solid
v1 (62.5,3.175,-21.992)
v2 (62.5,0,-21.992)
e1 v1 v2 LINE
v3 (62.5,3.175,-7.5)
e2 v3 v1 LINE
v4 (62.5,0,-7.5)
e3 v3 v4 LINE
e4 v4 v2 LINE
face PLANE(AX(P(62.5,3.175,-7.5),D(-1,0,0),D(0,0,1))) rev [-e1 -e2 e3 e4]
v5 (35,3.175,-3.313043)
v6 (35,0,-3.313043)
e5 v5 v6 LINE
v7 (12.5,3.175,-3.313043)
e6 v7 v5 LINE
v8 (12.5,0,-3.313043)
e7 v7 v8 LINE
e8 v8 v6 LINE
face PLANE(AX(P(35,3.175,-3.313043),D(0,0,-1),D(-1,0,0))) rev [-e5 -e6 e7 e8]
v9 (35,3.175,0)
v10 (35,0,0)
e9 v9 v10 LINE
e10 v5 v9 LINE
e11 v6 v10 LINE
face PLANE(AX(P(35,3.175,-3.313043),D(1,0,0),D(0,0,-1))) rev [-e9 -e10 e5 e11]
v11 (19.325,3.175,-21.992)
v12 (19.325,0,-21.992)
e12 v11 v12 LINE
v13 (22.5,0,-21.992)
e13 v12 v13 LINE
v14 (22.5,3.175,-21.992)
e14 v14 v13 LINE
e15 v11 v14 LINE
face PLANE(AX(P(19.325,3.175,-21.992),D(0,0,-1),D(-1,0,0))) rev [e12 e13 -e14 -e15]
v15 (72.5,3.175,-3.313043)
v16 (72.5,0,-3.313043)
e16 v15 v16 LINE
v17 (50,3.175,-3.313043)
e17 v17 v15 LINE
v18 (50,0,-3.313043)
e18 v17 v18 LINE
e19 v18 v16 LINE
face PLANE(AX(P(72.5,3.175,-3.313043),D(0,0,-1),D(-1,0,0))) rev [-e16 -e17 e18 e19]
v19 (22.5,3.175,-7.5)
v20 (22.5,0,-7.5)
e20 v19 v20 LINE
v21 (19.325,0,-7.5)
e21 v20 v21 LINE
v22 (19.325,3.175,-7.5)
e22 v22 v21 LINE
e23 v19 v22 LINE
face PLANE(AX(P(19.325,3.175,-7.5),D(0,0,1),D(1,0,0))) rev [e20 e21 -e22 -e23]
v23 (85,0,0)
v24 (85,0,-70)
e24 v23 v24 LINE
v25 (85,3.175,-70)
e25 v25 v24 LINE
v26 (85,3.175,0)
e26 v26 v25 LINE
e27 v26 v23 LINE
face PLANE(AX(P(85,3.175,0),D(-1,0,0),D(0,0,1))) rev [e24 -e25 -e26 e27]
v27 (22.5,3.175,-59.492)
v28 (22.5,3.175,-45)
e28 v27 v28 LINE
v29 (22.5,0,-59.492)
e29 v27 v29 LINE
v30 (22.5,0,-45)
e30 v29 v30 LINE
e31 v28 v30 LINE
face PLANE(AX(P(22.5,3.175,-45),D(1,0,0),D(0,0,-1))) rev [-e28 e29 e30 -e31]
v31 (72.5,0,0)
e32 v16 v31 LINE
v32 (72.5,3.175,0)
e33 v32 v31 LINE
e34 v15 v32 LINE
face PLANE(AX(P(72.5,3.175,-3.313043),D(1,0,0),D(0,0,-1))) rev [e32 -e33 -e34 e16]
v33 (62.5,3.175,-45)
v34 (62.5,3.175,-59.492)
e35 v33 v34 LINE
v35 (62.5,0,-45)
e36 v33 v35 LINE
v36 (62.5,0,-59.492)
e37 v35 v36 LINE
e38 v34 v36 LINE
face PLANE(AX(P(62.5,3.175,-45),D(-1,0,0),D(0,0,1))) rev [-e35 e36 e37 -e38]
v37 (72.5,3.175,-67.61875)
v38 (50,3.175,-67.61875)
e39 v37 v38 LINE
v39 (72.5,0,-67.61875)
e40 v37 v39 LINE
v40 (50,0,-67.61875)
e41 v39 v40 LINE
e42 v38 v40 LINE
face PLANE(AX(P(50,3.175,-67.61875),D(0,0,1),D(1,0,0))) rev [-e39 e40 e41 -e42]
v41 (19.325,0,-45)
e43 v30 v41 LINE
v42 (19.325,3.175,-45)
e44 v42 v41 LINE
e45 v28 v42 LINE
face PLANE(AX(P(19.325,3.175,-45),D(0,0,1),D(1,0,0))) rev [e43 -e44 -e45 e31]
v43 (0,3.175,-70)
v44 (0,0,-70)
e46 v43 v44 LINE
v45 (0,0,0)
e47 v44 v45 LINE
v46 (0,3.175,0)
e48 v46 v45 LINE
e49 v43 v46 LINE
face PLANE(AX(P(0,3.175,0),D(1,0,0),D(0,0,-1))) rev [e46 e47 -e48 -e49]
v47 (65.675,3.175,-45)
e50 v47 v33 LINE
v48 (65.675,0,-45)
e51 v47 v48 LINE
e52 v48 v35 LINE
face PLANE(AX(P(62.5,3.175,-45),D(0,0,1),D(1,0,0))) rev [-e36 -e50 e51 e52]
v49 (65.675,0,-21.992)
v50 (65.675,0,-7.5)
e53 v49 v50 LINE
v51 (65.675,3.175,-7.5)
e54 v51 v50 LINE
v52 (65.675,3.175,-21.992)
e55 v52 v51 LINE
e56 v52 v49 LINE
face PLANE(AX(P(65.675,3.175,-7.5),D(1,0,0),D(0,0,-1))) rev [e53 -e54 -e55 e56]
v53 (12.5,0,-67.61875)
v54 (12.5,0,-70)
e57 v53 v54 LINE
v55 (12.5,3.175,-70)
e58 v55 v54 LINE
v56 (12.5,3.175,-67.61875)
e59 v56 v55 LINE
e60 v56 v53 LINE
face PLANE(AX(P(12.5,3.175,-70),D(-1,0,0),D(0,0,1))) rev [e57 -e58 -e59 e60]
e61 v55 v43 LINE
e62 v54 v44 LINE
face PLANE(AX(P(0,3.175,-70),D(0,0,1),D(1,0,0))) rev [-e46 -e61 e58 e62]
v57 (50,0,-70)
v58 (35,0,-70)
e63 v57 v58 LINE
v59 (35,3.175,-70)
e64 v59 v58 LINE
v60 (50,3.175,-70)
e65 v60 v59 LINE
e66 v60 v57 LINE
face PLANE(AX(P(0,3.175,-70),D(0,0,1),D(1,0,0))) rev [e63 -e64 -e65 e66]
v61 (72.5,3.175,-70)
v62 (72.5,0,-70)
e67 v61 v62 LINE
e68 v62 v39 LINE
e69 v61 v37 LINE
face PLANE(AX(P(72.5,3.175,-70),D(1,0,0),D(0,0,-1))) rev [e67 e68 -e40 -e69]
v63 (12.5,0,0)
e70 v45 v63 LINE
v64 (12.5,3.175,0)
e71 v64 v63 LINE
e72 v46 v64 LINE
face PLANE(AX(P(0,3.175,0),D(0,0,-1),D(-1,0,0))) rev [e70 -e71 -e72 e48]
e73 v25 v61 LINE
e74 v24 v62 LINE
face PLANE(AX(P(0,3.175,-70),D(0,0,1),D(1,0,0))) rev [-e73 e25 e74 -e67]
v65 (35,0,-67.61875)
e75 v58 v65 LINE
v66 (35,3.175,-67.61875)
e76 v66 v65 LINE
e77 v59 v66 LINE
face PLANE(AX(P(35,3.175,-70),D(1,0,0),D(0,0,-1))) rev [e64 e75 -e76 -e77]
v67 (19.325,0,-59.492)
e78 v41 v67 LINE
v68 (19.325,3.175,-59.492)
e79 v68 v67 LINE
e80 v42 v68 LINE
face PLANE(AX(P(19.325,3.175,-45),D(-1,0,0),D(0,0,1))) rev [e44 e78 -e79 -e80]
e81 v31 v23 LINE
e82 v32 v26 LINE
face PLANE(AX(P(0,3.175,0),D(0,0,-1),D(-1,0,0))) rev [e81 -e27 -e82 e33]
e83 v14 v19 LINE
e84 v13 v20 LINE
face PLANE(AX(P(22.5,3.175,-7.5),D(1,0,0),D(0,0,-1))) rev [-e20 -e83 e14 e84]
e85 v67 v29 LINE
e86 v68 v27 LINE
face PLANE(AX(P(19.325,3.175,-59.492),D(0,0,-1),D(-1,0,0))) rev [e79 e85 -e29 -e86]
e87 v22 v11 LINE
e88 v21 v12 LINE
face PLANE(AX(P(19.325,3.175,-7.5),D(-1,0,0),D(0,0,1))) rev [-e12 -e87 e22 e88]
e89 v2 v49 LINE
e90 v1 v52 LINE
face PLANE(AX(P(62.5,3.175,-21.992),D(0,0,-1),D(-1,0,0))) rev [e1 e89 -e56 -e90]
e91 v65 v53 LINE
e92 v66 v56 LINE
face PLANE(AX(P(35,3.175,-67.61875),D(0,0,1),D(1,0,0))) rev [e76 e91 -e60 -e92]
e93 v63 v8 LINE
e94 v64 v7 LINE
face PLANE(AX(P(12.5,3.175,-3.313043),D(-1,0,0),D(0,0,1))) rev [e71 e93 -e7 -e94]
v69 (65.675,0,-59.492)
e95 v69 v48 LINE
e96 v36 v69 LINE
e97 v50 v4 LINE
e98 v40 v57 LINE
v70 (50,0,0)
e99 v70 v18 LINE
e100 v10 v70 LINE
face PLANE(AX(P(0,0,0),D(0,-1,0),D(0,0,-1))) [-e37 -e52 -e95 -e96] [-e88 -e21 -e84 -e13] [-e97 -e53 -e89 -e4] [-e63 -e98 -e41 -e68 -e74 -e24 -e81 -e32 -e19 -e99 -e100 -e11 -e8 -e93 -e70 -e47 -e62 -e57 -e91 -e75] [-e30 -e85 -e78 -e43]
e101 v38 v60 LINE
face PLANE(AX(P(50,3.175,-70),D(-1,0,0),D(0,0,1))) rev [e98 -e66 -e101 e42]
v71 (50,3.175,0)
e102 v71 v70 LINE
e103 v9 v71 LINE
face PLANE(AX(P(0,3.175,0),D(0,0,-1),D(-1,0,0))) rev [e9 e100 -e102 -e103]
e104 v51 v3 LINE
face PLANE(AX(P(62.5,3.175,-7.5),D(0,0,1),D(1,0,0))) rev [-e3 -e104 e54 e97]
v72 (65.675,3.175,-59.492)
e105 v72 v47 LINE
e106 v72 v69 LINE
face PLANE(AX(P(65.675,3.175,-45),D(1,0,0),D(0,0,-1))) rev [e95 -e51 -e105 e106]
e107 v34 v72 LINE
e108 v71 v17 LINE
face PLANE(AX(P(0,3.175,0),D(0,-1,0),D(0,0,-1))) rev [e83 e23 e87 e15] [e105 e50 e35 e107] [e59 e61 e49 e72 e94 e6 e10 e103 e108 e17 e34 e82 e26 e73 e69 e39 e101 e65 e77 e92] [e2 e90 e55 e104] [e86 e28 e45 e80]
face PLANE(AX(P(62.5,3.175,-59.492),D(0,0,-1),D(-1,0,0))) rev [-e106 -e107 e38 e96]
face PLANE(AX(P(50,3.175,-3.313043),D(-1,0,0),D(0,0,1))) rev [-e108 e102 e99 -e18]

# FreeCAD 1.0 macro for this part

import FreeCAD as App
import Part
import Sketcher

V = App.Vector


def add_polygon(sketch, points):
    """Adds a closed chain of lines whose ends are joined by coincident constraints."""
    first, n = sketch.GeometryCount, len(points)
    for a, b in zip(points, points[1:] + points[:1]):
        sketch.addGeometry(Part.LineSegment(App.Vector(*a, 0), App.Vector(*b, 0)), False)
    for i in range(n):
        sketch.addConstraint(Sketcher.Constraint("Coincident", first + i, 2, first + (i + 1) % n, 1))

doc = App.newDocument("Part")
body = doc.addObject("PartDesign::Body", "Body")

sketch1 = body.newObject("Sketcher::SketchObject", "Sketch")
sketch1.AttachmentSupport = (doc.getObject("XZ_Plane"), [""])
sketch1.MapMode = "FlatFace"
add_polygon(sketch1, [(0, -70), (0, 0), (85, 0), (85, -70)])
sketch1.addConstraint(Sketcher.Constraint("Vertical", 0))
sketch1.addConstraint(Sketcher.Constraint("Horizontal", 1))
sketch1.addConstraint(Sketcher.Constraint("Vertical", 2))
sketch1.addConstraint(Sketcher.Constraint("Horizontal", 3))
sketch1.addConstraint(Sketcher.Constraint("Coincident", 0, 2, -1, 1))
sketch1.addConstraint(Sketcher.Constraint("DistanceX", 1, 1, 1, 2, 85.0))
sketch1.addConstraint(Sketcher.Constraint("DistanceY", 0, 1, 0, 2, 70.0))
pad1 = body.newObject("PartDesign::Pad", "Pad")
pad1.Profile = sketch1
pad1.Length = 3.175
pad1.Reversed = True

sketch2 = body.newObject("Sketcher::SketchObject", "Sketch001")
sketch2.AttachmentSupport = (doc.getObject("XZ_Plane"), [""])
sketch2.MapMode = "FlatFace"
add_polygon(sketch2, [(19.3, -7.5), (19.3, -22), (22.5, -22), (22.5, -7.5)])
add_polygon(sketch2, [(19.3, -45), (19.3, -59.5), (22.5, -59.5), (22.5, -45)])
add_polygon(sketch2, [(62.5, -7.5), (62.5, -22), (65.7, -22), (65.7, -7.5)])
add_polygon(sketch2, [(62.5, -45), (62.5, -59.5), (65.7, -59.5), (65.7, -45)])
add_polygon(sketch2, [(50, -67.6), (50, -70), (72.5, -70), (72.5, -67.6)])
add_polygon(sketch2, [(12.5, -67.6), (12.5, -70), (35, -70), (35, -67.6)])
add_polygon(sketch2, [(50, 0), (50, -3.3), (72.5, -3.3), (72.5, 0)])
add_polygon(sketch2, [(12.5, 0), (12.5, -3.3), (35, -3.3), (35, 0)])
sketch2.addConstraint(Sketcher.Constraint("Vertical", 0))
sketch2.addConstraint(Sketcher.Constraint("Horizontal", 1))
sketch2.addConstraint(Sketcher.Constraint("Vertical", 2))
sketch2.addConstraint(Sketcher.Constraint("Horizontal", 3))
sketch2.addConstraint(Sketcher.Constraint("Vertical", 4))
sketch2.addConstraint(Sketcher.Constraint("Horizontal", 5))
sketch2.addConstraint(Sketcher.Constraint("Vertical", 6))
sketch2.addConstraint(Sketcher.Constraint("Horizontal", 7))
sketch2.addConstraint(Sketcher.Constraint("Vertical", 8))
sketch2.addConstraint(Sketcher.Constraint("Horizontal", 9))
sketch2.addConstraint(Sketcher.Constraint("Vertical", 10))
sketch2.addConstraint(Sketcher.Constraint("Horizontal", 11))
sketch2.addConstraint(Sketcher.Constraint("Vertical", 12))
sketch2.addConstraint(Sketcher.Constraint("Horizontal", 13))
sketch2.addConstraint(Sketcher.Constraint("Vertical", 14))
sketch2.addConstraint(Sketcher.Constraint("Horizontal", 15))
sketch2.addConstraint(Sketcher.Constraint("Vertical", 16))
sketch2.addConstraint(Sketcher.Constraint("Horizontal", 17))
sketch2.addConstraint(Sketcher.Constraint("Vertical", 18))
sketch2.addConstraint(Sketcher.Constraint("Horizontal", 19))
sketch2.addConstraint(Sketcher.Constraint("Vertical", 20))
sketch2.addConstraint(Sketcher.Constraint("Horizontal", 21))
sketch2.addConstraint(Sketcher.Constraint("Vertical", 22))
sketch2.addConstraint(Sketcher.Constraint("Horizontal", 23))
sketch2.addConstraint(Sketcher.Constraint("Vertical", 24))
sketch2.addConstraint(Sketcher.Constraint("Horizontal", 25))
sketch2.addConstraint(Sketcher.Constraint("Vertical", 26))
sketch2.addConstraint(Sketcher.Constraint("Horizontal", 27))
sketch2.addConstraint(Sketcher.Constraint("Vertical", 28))
sketch2.addConstraint(Sketcher.Constraint("Horizontal", 29))
sketch2.addConstraint(Sketcher.Constraint("Vertical", 30))
sketch2.addConstraint(Sketcher.Constraint("Horizontal", 31))
sketch2.addConstraint(Sketcher.Constraint("PointOnObject", 26, 2, -1))
sketch2.addConstraint(Sketcher.Constraint("PointOnObject", 30, 2, -1))
sketch2.addConstraint(Sketcher.Constraint("Horizontal", 1, 2, 8, 2))
sketch2.addConstraint(Sketcher.Constraint("Horizontal", 3, 2, 10, 2))
sketch2.addConstraint(Sketcher.Constraint("Horizontal", 5, 2, 12, 2))
sketch2.addConstraint(Sketcher.Constraint("Horizontal", 7, 2, 14, 2))
sketch2.addConstraint(Sketcher.Constraint("Horizontal", 17, 2, 20, 2))
sketch2.addConstraint(Sketcher.Constraint("Horizontal", 19, 2, 22, 2))
sketch2.addConstraint(Sketcher.Constraint("Horizontal", 25, 2, 28, 2))
sketch2.addConstraint(Sketcher.Constraint("Vertical", 3, 2, 4, 2))
sketch2.addConstraint(Sketcher.Constraint("Vertical", 2, 2, 5, 2))
sketch2.addConstraint(Sketcher.Constraint("Vertical", 11, 2, 12, 2))
sketch2.addConstraint(Sketcher.Constraint("Vertical", 10, 2, 13, 2))
sketch2.addConstraint(Sketcher.Constraint("Vertical", 19, 2, 24, 2))
sketch2.addConstraint(Sketcher.Constraint("Vertical", 18, 2, 25, 2))
sketch2.addConstraint(Sketcher.Constraint("Vertical", 23, 2, 28, 2))
sketch2.addConstraint(Sketcher.Constraint("Vertical", 22, 2, 29, 2))
sketch2.addConstraint(Sketcher.Constraint("Equal", 7, 9))
sketch2.addConstraint(Sketcher.Constraint("Equal", 19, 21))
sketch2.addConstraint(Sketcher.Constraint("Equal", 2, 4))
sketch2.addConstraint(Sketcher.Constraint("DistanceX", 17, 1, 17, 2, 22.5))
sketch2.addConstraint(Sketcher.Constraint("DistanceY", 6, 2, -1, 1, 45.0))
sketch2.addConstraint(Sketcher.Constraint("DistanceX", -1, 1, 16, 2, 50.0))
sketch2.addConstraint(Sketcher.Constraint("DistanceY", 16, 2, -1, 1, 70.0))
sketch2.addConstraint(Sketcher.Constraint("DistanceX", -1, 1, 21, 2, 35.0))
sketch2.addConstraint(Sketcher.Constraint("DistanceX", 1, 2, 8, 2, 40.0))
sketch2.addConstraint(Sketcher.Constraint("DistanceX", 12, 2, 17, 2, 10.0))
sketch2.addConstraint(Sketcher.Constraint("DistanceY", 2, 2, -1, 1, 7.5))
sketch2.addConstraint(Sketcher.Constraint("DistanceX", 1, 1, 1, 2, 3.175))
sketch2.addConstraint(Sketcher.Constraint("DistanceY", 0, 2, 0, 1, 14.492))
sketch2.addConstraint(Sketcher.Constraint("DistanceY", 16, 2, 16, 1, 2.38125))
sketch2.addConstraint(Sketcher.Constraint("DistanceY", 24, 2, 24, 1, 3.313043))
pocket1 = body.newObject("PartDesign::Pocket", "Pocket")
pocket1.Profile = sketch2
pocket1.Type = "ThroughAll"

doc.recompute()
